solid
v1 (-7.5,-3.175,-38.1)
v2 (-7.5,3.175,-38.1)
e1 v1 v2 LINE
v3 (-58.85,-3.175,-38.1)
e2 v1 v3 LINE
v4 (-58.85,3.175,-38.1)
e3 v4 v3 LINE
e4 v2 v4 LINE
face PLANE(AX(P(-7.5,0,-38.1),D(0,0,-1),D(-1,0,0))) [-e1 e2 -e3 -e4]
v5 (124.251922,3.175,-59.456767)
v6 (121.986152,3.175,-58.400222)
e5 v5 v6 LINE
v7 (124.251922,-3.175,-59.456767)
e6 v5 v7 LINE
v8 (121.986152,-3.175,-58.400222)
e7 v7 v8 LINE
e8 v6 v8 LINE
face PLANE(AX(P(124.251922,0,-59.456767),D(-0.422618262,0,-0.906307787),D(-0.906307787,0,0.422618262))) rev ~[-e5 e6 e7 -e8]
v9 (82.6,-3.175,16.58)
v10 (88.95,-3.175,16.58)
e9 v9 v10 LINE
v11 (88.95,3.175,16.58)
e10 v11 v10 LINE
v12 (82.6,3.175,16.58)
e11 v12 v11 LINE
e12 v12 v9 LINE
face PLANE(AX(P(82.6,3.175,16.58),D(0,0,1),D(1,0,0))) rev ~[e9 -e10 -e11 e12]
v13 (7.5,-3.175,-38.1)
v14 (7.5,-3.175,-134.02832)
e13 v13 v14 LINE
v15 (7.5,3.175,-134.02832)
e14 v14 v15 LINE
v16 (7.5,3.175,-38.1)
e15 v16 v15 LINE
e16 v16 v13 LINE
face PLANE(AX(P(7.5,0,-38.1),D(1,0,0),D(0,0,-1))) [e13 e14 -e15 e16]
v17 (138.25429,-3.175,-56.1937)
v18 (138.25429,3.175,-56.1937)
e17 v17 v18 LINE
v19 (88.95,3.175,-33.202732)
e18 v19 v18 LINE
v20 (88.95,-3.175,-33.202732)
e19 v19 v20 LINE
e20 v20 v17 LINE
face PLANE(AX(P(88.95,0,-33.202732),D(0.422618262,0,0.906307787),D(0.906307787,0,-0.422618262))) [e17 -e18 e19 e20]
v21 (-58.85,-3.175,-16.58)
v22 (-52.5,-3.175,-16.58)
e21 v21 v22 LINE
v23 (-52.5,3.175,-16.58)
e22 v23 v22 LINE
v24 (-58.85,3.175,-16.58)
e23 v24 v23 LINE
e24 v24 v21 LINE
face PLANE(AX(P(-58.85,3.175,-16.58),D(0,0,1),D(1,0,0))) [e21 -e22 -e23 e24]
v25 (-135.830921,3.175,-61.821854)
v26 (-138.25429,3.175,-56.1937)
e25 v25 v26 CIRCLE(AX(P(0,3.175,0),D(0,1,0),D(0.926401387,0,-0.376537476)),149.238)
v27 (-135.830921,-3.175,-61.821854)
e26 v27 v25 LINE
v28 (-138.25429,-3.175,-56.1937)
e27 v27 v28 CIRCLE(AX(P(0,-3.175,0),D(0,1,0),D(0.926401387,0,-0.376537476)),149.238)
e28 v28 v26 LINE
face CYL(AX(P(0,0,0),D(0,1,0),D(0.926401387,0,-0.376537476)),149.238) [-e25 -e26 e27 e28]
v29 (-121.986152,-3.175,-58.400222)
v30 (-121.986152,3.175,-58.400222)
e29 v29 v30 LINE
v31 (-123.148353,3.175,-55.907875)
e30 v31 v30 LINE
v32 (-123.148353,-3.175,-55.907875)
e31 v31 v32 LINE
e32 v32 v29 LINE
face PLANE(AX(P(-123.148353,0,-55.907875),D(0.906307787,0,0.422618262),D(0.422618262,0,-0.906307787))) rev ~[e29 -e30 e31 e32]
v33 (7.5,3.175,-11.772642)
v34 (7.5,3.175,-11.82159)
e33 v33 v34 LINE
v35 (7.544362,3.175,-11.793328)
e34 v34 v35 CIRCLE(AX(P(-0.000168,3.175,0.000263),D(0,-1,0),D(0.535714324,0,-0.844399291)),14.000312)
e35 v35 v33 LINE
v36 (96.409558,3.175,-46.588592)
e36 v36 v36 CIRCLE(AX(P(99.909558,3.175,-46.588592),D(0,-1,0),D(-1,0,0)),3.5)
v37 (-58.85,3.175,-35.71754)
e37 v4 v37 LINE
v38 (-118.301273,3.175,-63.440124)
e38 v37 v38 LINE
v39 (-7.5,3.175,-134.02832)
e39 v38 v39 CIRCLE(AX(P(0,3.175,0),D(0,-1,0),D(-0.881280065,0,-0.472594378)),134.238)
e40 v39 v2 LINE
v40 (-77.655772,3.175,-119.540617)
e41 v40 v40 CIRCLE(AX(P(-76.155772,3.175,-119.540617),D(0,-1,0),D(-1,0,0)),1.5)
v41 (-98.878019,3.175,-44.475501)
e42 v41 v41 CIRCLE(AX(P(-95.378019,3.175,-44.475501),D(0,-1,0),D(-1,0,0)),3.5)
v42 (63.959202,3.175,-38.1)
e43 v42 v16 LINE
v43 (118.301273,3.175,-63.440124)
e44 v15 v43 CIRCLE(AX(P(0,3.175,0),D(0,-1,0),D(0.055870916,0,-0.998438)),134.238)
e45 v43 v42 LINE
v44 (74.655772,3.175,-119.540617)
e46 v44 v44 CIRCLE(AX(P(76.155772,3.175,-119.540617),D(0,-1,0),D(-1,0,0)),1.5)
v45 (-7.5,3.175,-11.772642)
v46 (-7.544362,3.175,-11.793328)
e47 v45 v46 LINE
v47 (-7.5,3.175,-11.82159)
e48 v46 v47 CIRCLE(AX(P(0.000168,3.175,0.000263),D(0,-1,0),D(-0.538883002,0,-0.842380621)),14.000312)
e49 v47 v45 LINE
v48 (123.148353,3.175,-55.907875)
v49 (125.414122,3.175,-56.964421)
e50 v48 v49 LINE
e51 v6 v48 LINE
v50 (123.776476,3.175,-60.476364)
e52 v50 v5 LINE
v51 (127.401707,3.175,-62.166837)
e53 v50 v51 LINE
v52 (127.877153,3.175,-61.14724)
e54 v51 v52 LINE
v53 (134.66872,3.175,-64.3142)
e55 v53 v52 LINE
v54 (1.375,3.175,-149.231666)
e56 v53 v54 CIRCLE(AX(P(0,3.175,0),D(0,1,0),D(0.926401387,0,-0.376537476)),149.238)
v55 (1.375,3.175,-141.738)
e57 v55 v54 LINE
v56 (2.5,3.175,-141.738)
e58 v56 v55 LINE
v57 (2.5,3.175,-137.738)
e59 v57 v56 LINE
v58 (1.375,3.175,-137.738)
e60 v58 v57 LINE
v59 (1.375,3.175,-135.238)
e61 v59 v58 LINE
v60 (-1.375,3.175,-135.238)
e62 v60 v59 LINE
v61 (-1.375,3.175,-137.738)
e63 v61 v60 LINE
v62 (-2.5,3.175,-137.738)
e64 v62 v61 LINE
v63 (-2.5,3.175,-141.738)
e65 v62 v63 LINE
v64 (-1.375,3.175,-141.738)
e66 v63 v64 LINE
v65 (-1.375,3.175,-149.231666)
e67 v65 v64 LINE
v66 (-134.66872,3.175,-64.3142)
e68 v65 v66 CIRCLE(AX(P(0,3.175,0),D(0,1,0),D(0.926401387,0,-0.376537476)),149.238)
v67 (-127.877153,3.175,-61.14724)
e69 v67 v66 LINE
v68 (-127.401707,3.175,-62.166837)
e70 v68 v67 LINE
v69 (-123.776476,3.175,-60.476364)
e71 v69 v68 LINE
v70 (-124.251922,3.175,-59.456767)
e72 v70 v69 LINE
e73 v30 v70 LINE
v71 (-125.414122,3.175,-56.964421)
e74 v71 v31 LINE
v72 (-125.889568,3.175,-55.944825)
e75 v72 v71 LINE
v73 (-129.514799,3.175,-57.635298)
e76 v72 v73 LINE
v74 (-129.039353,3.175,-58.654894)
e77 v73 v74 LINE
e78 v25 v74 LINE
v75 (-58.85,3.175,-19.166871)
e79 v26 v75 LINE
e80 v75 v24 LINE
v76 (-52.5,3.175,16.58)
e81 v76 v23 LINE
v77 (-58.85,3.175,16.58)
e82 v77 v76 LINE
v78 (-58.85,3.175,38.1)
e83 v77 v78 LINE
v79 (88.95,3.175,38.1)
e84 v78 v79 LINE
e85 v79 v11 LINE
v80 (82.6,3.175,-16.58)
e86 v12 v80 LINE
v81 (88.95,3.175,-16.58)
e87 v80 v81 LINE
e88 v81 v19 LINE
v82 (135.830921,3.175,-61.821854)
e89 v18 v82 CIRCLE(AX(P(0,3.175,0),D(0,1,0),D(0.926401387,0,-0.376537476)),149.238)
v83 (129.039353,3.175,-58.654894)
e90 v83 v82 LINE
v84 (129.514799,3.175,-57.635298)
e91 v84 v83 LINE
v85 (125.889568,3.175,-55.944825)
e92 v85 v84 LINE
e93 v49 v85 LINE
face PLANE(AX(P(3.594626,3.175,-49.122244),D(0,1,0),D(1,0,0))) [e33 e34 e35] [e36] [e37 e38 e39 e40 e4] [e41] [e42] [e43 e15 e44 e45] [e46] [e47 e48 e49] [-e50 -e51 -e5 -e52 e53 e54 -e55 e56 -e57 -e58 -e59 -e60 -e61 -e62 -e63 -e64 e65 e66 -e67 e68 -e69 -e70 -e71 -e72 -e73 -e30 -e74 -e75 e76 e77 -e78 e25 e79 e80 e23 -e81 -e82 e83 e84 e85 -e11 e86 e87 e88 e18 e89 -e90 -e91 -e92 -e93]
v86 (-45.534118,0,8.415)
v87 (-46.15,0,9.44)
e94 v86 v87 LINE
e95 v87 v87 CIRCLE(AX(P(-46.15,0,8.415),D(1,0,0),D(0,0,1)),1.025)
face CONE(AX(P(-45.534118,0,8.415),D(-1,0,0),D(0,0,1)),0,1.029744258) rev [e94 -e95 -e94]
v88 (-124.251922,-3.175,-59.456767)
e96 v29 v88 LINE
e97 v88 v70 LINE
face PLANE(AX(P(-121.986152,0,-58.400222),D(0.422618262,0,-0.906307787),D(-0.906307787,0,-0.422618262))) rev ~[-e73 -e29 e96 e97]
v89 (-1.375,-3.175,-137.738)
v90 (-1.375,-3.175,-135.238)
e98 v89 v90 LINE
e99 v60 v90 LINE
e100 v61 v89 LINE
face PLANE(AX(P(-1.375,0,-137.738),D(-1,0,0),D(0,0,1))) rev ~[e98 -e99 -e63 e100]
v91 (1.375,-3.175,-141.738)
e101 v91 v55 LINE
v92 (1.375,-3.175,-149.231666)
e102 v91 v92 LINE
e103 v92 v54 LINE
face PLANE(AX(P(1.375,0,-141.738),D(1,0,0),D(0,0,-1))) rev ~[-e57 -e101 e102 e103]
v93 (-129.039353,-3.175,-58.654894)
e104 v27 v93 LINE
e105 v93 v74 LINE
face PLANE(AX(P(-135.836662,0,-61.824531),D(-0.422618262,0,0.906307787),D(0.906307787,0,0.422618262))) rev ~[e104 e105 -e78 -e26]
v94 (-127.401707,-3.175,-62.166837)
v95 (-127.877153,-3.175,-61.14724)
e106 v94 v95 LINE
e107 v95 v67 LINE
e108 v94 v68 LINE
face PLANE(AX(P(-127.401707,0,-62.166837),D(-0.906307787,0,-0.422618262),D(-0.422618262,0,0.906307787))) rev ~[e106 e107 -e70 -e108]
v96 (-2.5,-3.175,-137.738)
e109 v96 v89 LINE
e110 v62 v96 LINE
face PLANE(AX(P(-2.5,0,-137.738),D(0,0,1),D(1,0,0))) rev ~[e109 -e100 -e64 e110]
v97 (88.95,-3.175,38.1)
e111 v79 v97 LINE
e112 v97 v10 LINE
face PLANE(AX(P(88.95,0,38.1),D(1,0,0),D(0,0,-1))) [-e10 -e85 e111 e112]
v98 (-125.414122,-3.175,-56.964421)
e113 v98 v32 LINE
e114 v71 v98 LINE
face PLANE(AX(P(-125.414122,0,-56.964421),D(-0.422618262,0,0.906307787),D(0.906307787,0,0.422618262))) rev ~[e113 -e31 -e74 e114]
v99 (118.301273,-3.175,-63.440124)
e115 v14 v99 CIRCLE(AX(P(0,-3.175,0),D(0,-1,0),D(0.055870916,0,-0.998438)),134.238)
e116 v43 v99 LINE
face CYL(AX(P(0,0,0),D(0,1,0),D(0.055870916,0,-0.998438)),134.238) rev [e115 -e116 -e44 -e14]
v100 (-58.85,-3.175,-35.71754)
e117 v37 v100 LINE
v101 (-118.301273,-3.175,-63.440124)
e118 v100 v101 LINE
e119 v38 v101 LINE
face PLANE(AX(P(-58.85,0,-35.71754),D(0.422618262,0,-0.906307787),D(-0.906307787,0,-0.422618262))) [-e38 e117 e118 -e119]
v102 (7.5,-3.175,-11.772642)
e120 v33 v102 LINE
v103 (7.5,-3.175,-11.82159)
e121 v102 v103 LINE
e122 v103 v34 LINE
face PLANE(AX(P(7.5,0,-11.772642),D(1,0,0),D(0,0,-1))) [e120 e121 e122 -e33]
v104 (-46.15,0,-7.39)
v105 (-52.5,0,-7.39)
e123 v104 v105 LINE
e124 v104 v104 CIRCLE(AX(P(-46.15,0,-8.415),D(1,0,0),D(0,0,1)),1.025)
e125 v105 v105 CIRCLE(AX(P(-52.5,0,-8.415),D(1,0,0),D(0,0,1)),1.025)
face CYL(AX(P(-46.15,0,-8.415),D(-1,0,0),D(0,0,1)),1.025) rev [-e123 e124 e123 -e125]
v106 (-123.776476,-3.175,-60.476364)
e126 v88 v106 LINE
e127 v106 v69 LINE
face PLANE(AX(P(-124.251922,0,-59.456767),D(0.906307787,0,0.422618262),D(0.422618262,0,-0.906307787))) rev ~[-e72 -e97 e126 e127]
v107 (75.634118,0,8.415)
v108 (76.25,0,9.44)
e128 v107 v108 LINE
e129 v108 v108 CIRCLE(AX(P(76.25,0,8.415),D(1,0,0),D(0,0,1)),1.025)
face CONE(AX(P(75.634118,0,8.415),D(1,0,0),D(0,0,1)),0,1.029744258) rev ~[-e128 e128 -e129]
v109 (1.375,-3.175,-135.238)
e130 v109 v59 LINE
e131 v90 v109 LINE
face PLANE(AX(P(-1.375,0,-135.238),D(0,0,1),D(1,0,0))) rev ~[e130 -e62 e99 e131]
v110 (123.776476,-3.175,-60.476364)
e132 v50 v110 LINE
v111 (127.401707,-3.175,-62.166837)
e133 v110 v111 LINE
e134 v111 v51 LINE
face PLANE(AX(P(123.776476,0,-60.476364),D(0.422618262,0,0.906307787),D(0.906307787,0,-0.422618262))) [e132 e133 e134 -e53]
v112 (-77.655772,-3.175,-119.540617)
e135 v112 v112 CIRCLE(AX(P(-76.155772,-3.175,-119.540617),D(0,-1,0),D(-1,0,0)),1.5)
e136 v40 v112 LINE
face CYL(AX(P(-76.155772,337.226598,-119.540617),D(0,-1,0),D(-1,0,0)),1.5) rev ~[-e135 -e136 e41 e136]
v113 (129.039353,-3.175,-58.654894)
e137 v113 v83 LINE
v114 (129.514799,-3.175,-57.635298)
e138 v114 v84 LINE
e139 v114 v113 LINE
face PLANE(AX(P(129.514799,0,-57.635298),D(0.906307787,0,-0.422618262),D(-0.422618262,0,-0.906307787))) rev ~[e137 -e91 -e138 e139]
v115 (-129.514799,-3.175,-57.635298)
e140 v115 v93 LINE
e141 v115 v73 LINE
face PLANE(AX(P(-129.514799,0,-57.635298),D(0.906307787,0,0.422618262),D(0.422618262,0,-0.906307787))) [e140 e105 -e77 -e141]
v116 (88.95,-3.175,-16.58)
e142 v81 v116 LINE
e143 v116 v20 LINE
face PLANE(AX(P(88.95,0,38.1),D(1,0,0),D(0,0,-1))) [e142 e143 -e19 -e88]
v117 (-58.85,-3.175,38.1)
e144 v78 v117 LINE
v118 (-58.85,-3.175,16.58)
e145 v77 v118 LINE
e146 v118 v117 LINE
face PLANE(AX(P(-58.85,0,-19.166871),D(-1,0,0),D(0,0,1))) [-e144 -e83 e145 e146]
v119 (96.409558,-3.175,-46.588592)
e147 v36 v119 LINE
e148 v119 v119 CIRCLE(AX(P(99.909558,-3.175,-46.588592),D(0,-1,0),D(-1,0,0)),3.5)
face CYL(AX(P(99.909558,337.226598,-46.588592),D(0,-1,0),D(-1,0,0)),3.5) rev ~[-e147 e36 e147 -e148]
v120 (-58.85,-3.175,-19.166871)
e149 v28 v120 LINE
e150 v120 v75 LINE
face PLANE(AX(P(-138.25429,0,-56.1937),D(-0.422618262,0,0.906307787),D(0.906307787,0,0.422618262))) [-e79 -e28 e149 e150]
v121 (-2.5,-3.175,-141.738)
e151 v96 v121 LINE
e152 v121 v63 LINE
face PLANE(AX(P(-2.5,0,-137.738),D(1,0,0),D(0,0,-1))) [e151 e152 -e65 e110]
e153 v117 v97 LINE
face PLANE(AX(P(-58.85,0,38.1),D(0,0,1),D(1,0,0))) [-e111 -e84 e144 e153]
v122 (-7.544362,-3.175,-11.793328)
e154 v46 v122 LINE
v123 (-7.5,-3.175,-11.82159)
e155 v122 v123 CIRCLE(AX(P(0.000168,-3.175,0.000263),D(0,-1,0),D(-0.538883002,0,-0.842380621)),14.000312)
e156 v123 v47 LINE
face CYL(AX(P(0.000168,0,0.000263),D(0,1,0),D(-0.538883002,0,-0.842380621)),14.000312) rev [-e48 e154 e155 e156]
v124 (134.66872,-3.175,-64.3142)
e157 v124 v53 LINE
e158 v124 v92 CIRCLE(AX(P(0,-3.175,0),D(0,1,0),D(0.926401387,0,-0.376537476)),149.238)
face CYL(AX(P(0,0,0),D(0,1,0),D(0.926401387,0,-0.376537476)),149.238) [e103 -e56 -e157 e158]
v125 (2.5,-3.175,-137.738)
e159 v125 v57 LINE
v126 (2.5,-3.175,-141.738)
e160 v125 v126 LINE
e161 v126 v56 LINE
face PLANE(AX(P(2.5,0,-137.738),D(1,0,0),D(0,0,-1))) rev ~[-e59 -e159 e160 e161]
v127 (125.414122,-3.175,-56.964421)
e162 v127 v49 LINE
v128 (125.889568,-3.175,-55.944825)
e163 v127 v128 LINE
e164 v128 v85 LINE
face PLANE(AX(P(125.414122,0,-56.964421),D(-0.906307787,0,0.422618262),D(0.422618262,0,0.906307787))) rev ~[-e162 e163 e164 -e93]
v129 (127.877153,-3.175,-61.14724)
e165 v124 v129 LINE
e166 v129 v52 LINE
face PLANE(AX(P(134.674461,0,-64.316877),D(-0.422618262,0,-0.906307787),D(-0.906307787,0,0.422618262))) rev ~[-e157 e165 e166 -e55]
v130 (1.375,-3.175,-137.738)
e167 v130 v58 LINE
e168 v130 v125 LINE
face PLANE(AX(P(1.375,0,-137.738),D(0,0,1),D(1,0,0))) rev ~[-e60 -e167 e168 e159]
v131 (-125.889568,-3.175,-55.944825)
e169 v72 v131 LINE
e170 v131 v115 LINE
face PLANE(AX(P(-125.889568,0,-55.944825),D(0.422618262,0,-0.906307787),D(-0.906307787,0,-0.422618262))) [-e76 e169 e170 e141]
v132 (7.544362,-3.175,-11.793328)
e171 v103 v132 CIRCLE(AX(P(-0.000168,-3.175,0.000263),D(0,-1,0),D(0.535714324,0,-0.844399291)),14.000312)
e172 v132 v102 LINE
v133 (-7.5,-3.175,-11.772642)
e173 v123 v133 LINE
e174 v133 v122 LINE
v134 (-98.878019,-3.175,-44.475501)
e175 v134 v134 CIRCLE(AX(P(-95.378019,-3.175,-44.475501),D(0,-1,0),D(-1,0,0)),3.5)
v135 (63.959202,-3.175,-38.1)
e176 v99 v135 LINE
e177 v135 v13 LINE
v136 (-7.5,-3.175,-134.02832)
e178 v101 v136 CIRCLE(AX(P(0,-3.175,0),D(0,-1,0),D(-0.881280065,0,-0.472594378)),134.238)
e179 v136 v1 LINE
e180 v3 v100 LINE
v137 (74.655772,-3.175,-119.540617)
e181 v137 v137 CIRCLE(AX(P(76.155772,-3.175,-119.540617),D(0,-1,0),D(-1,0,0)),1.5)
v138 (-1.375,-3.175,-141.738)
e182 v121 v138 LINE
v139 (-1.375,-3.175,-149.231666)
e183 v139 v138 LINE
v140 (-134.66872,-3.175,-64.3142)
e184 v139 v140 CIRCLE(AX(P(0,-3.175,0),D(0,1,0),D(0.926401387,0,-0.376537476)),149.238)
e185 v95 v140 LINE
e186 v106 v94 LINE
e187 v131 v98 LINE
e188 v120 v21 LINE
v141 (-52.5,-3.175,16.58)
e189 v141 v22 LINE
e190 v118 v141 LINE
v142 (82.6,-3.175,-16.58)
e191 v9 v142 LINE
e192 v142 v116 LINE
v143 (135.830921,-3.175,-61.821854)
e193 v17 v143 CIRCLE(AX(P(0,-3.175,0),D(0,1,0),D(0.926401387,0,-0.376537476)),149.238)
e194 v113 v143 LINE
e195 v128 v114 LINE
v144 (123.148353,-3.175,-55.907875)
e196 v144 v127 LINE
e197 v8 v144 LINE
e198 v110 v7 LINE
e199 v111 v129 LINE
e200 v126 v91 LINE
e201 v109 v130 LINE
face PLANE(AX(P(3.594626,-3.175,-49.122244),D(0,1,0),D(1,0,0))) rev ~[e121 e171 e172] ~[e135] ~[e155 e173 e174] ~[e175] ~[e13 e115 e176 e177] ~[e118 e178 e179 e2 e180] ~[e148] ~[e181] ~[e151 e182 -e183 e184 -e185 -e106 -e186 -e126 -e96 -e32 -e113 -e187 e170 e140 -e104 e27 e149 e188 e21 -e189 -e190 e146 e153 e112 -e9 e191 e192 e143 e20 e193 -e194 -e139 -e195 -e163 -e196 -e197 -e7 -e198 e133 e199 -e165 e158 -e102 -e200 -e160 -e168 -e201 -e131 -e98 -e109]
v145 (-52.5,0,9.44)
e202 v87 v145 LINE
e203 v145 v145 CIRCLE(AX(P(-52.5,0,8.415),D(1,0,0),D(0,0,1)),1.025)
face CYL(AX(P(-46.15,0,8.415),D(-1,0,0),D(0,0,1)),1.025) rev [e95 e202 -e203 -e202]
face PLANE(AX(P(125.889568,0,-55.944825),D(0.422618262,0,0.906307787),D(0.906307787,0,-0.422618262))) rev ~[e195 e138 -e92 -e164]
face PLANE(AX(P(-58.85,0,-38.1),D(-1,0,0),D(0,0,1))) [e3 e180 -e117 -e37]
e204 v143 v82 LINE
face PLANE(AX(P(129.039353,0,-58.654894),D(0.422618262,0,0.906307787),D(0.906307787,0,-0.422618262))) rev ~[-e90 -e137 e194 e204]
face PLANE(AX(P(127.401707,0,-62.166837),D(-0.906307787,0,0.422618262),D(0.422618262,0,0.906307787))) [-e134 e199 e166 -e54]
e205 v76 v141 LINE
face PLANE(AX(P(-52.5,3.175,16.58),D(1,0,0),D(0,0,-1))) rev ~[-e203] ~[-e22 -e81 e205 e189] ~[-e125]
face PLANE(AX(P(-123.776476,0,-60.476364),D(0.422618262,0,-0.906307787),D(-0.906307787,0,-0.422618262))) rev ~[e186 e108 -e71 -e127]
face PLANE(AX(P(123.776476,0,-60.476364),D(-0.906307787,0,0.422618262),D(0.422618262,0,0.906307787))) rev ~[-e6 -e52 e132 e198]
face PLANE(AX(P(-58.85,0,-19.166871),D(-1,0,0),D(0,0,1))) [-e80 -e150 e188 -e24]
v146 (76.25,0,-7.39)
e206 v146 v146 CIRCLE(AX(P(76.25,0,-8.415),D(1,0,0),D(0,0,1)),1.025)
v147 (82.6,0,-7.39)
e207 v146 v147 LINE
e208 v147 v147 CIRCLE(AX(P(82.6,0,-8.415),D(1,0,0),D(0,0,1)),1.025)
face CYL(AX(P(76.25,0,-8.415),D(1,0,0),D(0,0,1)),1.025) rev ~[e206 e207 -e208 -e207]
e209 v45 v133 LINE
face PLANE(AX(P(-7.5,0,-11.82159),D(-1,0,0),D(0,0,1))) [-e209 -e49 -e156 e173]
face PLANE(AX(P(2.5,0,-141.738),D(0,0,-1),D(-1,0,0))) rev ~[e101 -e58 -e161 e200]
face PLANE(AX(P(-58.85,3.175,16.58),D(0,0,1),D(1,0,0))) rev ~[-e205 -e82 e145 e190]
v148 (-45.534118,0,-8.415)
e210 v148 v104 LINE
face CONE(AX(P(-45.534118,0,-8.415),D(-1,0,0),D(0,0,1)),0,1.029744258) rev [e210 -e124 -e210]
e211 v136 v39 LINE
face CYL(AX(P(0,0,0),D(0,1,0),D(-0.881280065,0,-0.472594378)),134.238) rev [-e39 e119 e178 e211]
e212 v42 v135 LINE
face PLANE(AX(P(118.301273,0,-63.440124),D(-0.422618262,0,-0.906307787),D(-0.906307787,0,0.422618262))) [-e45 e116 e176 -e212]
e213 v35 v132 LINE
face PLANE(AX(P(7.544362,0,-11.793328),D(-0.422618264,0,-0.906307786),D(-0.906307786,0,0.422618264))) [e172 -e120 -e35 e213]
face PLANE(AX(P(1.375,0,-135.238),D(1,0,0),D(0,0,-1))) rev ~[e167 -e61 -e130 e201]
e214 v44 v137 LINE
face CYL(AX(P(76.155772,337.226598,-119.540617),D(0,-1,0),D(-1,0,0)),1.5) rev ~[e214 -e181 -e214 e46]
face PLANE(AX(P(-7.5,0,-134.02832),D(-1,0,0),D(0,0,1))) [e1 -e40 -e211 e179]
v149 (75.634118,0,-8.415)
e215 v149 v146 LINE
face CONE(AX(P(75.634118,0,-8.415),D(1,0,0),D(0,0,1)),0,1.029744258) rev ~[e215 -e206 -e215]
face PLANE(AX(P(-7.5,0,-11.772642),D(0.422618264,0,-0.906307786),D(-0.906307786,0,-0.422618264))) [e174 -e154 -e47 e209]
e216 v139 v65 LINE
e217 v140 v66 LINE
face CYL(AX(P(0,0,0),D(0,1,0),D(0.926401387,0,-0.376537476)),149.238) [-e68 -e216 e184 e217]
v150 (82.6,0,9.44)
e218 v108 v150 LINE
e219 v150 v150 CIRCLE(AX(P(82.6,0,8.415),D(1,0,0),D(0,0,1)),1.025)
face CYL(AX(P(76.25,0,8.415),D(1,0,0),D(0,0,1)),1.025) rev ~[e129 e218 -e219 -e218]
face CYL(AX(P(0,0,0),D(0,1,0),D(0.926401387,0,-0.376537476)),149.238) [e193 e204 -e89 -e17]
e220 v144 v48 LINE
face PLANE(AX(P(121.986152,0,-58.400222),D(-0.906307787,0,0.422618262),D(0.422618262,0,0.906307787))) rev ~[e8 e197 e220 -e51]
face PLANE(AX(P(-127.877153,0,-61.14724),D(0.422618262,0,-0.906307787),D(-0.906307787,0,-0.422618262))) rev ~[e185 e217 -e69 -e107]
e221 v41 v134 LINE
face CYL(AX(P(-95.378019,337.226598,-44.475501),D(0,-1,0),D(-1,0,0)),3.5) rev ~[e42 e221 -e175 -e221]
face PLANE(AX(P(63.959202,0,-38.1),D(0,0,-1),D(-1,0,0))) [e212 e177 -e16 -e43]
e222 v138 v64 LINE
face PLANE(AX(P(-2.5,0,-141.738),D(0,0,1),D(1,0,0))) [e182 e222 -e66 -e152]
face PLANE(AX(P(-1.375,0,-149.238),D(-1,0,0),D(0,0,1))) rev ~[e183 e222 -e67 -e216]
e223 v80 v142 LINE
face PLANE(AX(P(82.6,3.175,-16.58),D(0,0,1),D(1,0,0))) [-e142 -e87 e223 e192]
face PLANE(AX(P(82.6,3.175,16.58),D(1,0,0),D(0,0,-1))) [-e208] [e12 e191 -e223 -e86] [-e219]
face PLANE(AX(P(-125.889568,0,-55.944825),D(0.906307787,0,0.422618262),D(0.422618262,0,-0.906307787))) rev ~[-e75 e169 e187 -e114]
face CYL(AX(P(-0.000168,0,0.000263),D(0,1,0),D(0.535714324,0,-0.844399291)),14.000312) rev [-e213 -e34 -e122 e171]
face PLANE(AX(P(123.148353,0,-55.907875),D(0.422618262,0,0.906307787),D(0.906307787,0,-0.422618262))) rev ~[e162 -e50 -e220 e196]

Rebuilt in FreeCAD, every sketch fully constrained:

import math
import FreeCAD as App
import Part
import Sketcher
from FreeCAD import Vector
Q = App.Units.Quantity

doc = App.newDocument("Part")
params = doc.addObject("Spreadsheet::Sheet", "Params")
for row, (alias, value) in enumerate([
    ("sketch1_width", "147.8 mm"),
    ("sketch1_width2", "51.35 mm"),
    ("pad1_length", "6.35 mm"),
    ("sketch2_height", "4 mm"),
    ("sketch2_height2", "2.5 mm"),
    ("sketch2_height3", "7.5 mm"),
    ("sketch2_width", "2.75 mm"),
    ("pocket1_length", "408.921663 mm"),
    ("sketch3_diameter", "3 mm"),
    ("hole_diameter", "3 mm"),
    ("sketch4_width", "6.35 mm"),
    ("sketch4_height", "33.16 mm"),
    ("sketch5_width", "6.35 mm"),
    ("groove_angle", "360 deg"),
    ("linearpattern_pitch", "16.83 mm"),
    ("sketch6_width", "6.35 mm"),
    ("groove2_angle", "360 deg"),
    ("sketch7_diameter", "7 mm"),
    ("hole2_diameter", "7 mm"),
], start=1):
    params.set(f"A{row}", alias)
    params.set(f"B{row}", "=" + value)
    params.setAlias(f"B{row}", alias)

body = doc.addObject("PartDesign::Body", "Body")

# Sketch on XZ plane
sketch1 = doc.addObject("Sketcher::SketchObject", "Sketch")
body.addObject(sketch1)
sketch1.AttachmentSupport = (doc.XZ_Plane, [""])
sketch1.MapMode = "FlatFace"
sketch1.addGeometry(Part.LineSegment(Vector(88.95, -33.202732, 0), Vector(138.25429, -56.1937, 0)), False)
sketch1.addGeometry(Part.ArcOfCircle(Part.Circle(Vector(0, 0, 0), Vector(0, 0, 1), 149.238), math.radians(-157.88063), math.radians(-22.11937)), False)
sketch1.addGeometry(Part.LineSegment(Vector(-138.25429, -56.1937, 0), Vector(-58.85, -19.166871, 0)), False)
sketch1.addGeometry(Part.LineSegment(Vector(-58.85, -19.166871, 0), Vector(-58.85, 38.1, 0)), False)
sketch1.addGeometry(Part.LineSegment(Vector(-58.85, 38.1, 0), Vector(88.95, 38.1, 0)), False)
sketch1.addGeometry(Part.LineSegment(Vector(88.95, 38.1, 0), Vector(88.95, -33.202732, 0)), False)
sketch1.addGeometry(Part.ArcOfCircle(Part.Circle(Vector(0.000168, 0.000263, 0), Vector(0, 0, 1), 14.000312), math.radians(-122.607632), math.radians(-122.392368)), False)
sketch1.addGeometry(Part.LineSegment(Vector(-7.5, -11.82159, 0), Vector(-7.5, -11.772642, 0)), False)
sketch1.addGeometry(Part.LineSegment(Vector(-7.5, -11.772642, 0), Vector(-7.544362, -11.793328, 0)), False)
sketch1.addGeometry(Part.LineSegment(Vector(7.5, -11.772642, 0), Vector(7.5, -11.82159, 0)), False)
sketch1.addGeometry(Part.ArcOfCircle(Part.Circle(Vector(-0.000168, 0.000263, 0), Vector(0, 0, 1), 14.000312), math.radians(-57.607632), math.radians(-57.392368)), False)
sketch1.addGeometry(Part.LineSegment(Vector(7.544362, -11.793328, 0), Vector(7.5, -11.772642, 0)), False)
sketch1.addGeometry(Part.ArcOfCircle(Part.Circle(Vector(0, 0, 0), Vector(0, 0, 1), 134.238), math.radians(-151.797165), math.radians(-93.202835)), False)
sketch1.addGeometry(Part.LineSegment(Vector(-7.5, -134.02832, 0), Vector(-7.5, -38.1, 0)), False)
sketch1.addGeometry(Part.LineSegment(Vector(-7.5, -38.1, 0), Vector(-58.85, -38.1, 0)), False)
sketch1.addGeometry(Part.LineSegment(Vector(-58.85, -38.1, 0), Vector(-58.85, -35.71754, 0)), False)
sketch1.addGeometry(Part.LineSegment(Vector(-58.85, -35.71754, 0), Vector(-118.301273, -63.440124, 0)), False)
sketch1.addGeometry(Part.LineSegment(Vector(7.5, -38.1, 0), Vector(7.5, -134.02832, 0)), False)
sketch1.addGeometry(Part.ArcOfCircle(Part.Circle(Vector(0, 0, 0), Vector(0, 0, 1), 134.238), math.radians(-86.797165), math.radians(-28.202835)), False)
sketch1.addGeometry(Part.LineSegment(Vector(118.301273, -63.440124, 0), Vector(63.959202, -38.1, 0)), False)
sketch1.addGeometry(Part.LineSegment(Vector(63.959202, -38.1, 0), Vector(7.5, -38.1, 0)), False)
sketch1.addConstraint(Sketcher.Constraint("Coincident", 0, 2, 1, 2))
sketch1.addConstraint(Sketcher.Constraint("Coincident", 1, 1, 2, 1))
sketch1.addConstraint(Sketcher.Constraint("Coincident", 2, 2, 3, 1))
sketch1.addConstraint(Sketcher.Constraint("Coincident", 3, 2, 4, 1))
sketch1.addConstraint(Sketcher.Constraint("Coincident", 4, 2, 5, 1))
sketch1.addConstraint(Sketcher.Constraint("Coincident", 5, 2, 0, 1))
sketch1.addConstraint(Sketcher.Constraint("Coincident", 6, 2, 7, 1))
sketch1.addConstraint(Sketcher.Constraint("Coincident", 7, 2, 8, 1))
sketch1.addConstraint(Sketcher.Constraint("Coincident", 8, 2, 6, 1))
sketch1.addConstraint(Sketcher.Constraint("Coincident", 9, 2, 10, 1))
sketch1.addConstraint(Sketcher.Constraint("Coincident", 10, 2, 11, 1))
sketch1.addConstraint(Sketcher.Constraint("Coincident", 11, 2, 9, 1))
sketch1.addConstraint(Sketcher.Constraint("Coincident", 12, 2, 13, 1))
sketch1.addConstraint(Sketcher.Constraint("Coincident", 13, 2, 14, 1))
sketch1.addConstraint(Sketcher.Constraint("Coincident", 14, 2, 15, 1))
sketch1.addConstraint(Sketcher.Constraint("Coincident", 15, 2, 16, 1))
sketch1.addConstraint(Sketcher.Constraint("Coincident", 16, 2, 12, 1))
sketch1.addConstraint(Sketcher.Constraint("Coincident", 17, 2, 18, 1))
sketch1.addConstraint(Sketcher.Constraint("Coincident", 18, 2, 19, 1))
sketch1.addConstraint(Sketcher.Constraint("Coincident", 19, 2, 20, 1))
sketch1.addConstraint(Sketcher.Constraint("Coincident", 20, 2, 17, 1))
sketch1.addConstraint(Sketcher.Constraint("Vertical", 3))
sketch1.addConstraint(Sketcher.Constraint("Horizontal", 4))
sketch1.addConstraint(Sketcher.Constraint("Vertical", 5))
sketch1.addConstraint(Sketcher.Constraint("Vertical", 7))
sketch1.addConstraint(Sketcher.Constraint("Vertical", 9))
sketch1.addConstraint(Sketcher.Constraint("Vertical", 13))
sketch1.addConstraint(Sketcher.Constraint("Horizontal", 14))
sketch1.addConstraint(Sketcher.Constraint("Vertical", 15))
sketch1.addConstraint(Sketcher.Constraint("Vertical", 17))
sketch1.addConstraint(Sketcher.Constraint("Horizontal", 20))
sketch1.addConstraint(Sketcher.Constraint("Coincident", 1, 3, -1, 1))
sketch1.addConstraint(Sketcher.Constraint("Coincident", 12, 3, -1, 1))
sketch1.addConstraint(Sketcher.Constraint("Coincident", 18, 3, -1, 1))
sketch1.addConstraint(Sketcher.Constraint("Equal", 6, 10))
sketch1.addConstraint(Sketcher.Constraint("Equal", 12, 18))
sketch1.addConstraint(Sketcher.Constraint("Symmetric", 6, 3, 10, 3, -2))
sketch1.addConstraint(Sketcher.Constraint("Symmetric", 7, 2, 11, 2, -2))
sketch1.addConstraint(Sketcher.Constraint("Symmetric", 13, 2, 20, 2, -2))
sketch1.addConstraint(Sketcher.Constraint("Symmetric", 3, 2, 14, 2, -1))
sketch1.addConstraint(Sketcher.Constraint("Parallel", 2, 8))
sketch1.addConstraint(Sketcher.Constraint("Parallel", 0, 11))
sketch1.addConstraint(Sketcher.Constraint("Parallel", 2, 16))
sketch1.addConstraint(Sketcher.Constraint("Parallel", 0, 19))
sketch1.addConstraint(Sketcher.Constraint("Horizontal", 0, 2, 1, 1))
sketch1.addConstraint(Sketcher.Constraint("Horizontal", 16, 2, 18, 2))
sketch1.addConstraint(Sketcher.Constraint("Vertical", 7, 2, 12, 2))
sketch1.addConstraint(Sketcher.Constraint("Angle", 0, Q("-25 deg")))
sketch1.addConstraint(Sketcher.Constraint("Angle", 2, Q("25 deg")))
sketch1.addConstraint(Sketcher.Constraint("DistanceX", 4, 1, 4, 2, Q("147.8 mm")))
sketch1.addConstraint(Sketcher.Constraint("Radius", 1, Q("149.238 mm")))
sketch1.addConstraint(Sketcher.Constraint("Radius", 12, Q("134.238 mm")))
sketch1.addConstraint(Sketcher.Constraint("DistanceX", 12, 2, 9, 2, Q("15 mm")))
sketch1.addConstraint(Sketcher.Constraint("DistanceX", 14, 2, 14, 1, Q("51.35 mm")))
sketch1.addConstraint(Sketcher.Constraint("DistanceY", -1, 1, 3, 2, Q("38.1 mm")))
sketch1.addConstraint(Sketcher.Constraint("Radius", 6, Q("14.000312 mm")))
sketch1.addConstraint(Sketcher.Constraint("DistanceX", 20, 2, 20, 1, Q("56.459202 mm")))
sketch1.addConstraint(Sketcher.Constraint("DistanceY", 3, 1, 3, 2, Q("57.266871 mm")))
sketch1.addConstraint(Sketcher.Constraint("DistanceY", 7, 1, 7, 2, Q("0.048949 mm")))
sketch1.addConstraint(Sketcher.Constraint("Distance", 8, Q("0.048949 mm")))
sketch1.addConstraint(Sketcher.Constraint("DistanceY", 6, 2, -1, 1, Q("11.82159 mm")))
sketch1.setExpression("Constraints[49]", "Params.sketch1_width")
sketch1.setExpression("Constraints[53]", "Params.sketch1_width2")
pad1 = doc.addObject("PartDesign::Pad", "Pad")
body.addObject(pad1)
pad1.Profile = sketch1
pad1.setExpression("Length", "Params.pad1_length")
pad1.Midplane = True

# Sketch on XZ plane
sketch2 = doc.addObject("Sketcher::SketchObject", "Sketch001")
body.addObject(sketch2)
sketch2.AttachmentSupport = (doc.XZ_Plane, [""])
sketch2.MapMode = "FlatFace"
sketch2.addGeometry(Part.LineSegment(Vector(-1.4, -135.2, 0), Vector(1.4, -135.2, 0)), False)
sketch2.addGeometry(Part.LineSegment(Vector(1.4, -135.2, 0), Vector(1.4, -137.7, 0)), False)
sketch2.addGeometry(Part.LineSegment(Vector(1.4, -137.7, 0), Vector(2.5, -137.7, 0)), False)
sketch2.addGeometry(Part.LineSegment(Vector(2.5, -137.7, 0), Vector(2.5, -141.7, 0)), False)
sketch2.addGeometry(Part.LineSegment(Vector(2.5, -141.7, 0), Vector(1.4, -141.7, 0)), False)
sketch2.addGeometry(Part.LineSegment(Vector(1.4, -141.7, 0), Vector(1.4, -149.2, 0)), False)
sketch2.addGeometry(Part.LineSegment(Vector(1.4, -149.2, 0), Vector(-1.4, -149.2, 0)), False)
sketch2.addGeometry(Part.LineSegment(Vector(-1.4, -149.2, 0), Vector(-1.4, -141.7, 0)), False)
sketch2.addGeometry(Part.LineSegment(Vector(-1.4, -141.7, 0), Vector(-2.5, -141.7, 0)), False)
sketch2.addGeometry(Part.LineSegment(Vector(-2.5, -141.7, 0), Vector(-2.5, -137.7, 0)), False)
sketch2.addGeometry(Part.LineSegment(Vector(-2.5, -137.7, 0), Vector(-1.4, -137.7, 0)), False)
sketch2.addGeometry(Part.LineSegment(Vector(-1.4, -137.7, 0), Vector(-1.4, -135.2, 0)), False)
sketch2.addConstraint(Sketcher.Constraint("Coincident", 0, 2, 1, 1))
sketch2.addConstraint(Sketcher.Constraint("Coincident", 1, 2, 2, 1))
sketch2.addConstraint(Sketcher.Constraint("Coincident", 2, 2, 3, 1))
sketch2.addConstraint(Sketcher.Constraint("Coincident", 3, 2, 4, 1))
sketch2.addConstraint(Sketcher.Constraint("Coincident", 4, 2, 5, 1))
sketch2.addConstraint(Sketcher.Constraint("Coincident", 5, 2, 6, 1))
sketch2.addConstraint(Sketcher.Constraint("Coincident", 6, 2, 7, 1))
sketch2.addConstraint(Sketcher.Constraint("Coincident", 7, 2, 8, 1))
sketch2.addConstraint(Sketcher.Constraint("Coincident", 8, 2, 9, 1))
sketch2.addConstraint(Sketcher.Constraint("Coincident", 9, 2, 10, 1))
sketch2.addConstraint(Sketcher.Constraint("Coincident", 10, 2, 11, 1))
sketch2.addConstraint(Sketcher.Constraint("Coincident", 11, 2, 0, 1))
sketch2.addConstraint(Sketcher.Constraint("Horizontal", 0))
sketch2.addConstraint(Sketcher.Constraint("Vertical", 1))
sketch2.addConstraint(Sketcher.Constraint("Horizontal", 2))
sketch2.addConstraint(Sketcher.Constraint("Vertical", 3))
sketch2.addConstraint(Sketcher.Constraint("Horizontal", 4))
sketch2.addConstraint(Sketcher.Constraint("Vertical", 5))
sketch2.addConstraint(Sketcher.Constraint("Horizontal", 6))
sketch2.addConstraint(Sketcher.Constraint("Vertical", 7))
sketch2.addConstraint(Sketcher.Constraint("Horizontal", 8))
sketch2.addConstraint(Sketcher.Constraint("Vertical", 9))
sketch2.addConstraint(Sketcher.Constraint("Horizontal", 10))
sketch2.addConstraint(Sketcher.Constraint("Vertical", 11))
sketch2.addConstraint(Sketcher.Constraint("Symmetric", 4, 2, 7, 2, -2))
sketch2.addConstraint(Sketcher.Constraint("Symmetric", 2, 2, 9, 2, -2))
sketch2.addConstraint(Sketcher.Constraint("Vertical", 1, 2, 4, 2))
sketch2.addConstraint(Sketcher.Constraint("Vertical", 7, 2, 10, 2))
sketch2.addConstraint(Sketcher.Constraint("DistanceY", 3, 2, 3, 1, Q("4 mm")))
sketch2.addConstraint(Sketcher.Constraint("DistanceY", 1, 2, 1, 1, Q("2.5 mm")))
sketch2.addConstraint(Sketcher.Constraint("DistanceY", 5, 2, 5, 1, Q("7.5 mm")))
sketch2.addConstraint(Sketcher.Constraint("DistanceX", 8, 2, 3, 2, Q("5 mm")))
sketch2.addConstraint(Sketcher.Constraint("DistanceX", 0, 1, 0, 2, Q("2.75 mm")))
sketch2.addConstraint(Sketcher.Constraint("DistanceY", 0, 2, -1, 1, Q("135.238 mm")))
sketch2.setExpression("Constraints[28]", "Params.sketch2_height")
sketch2.setExpression("Constraints[29]", "Params.sketch2_height2")
sketch2.setExpression("Constraints[30]", "Params.sketch2_height3")
sketch2.setExpression("Constraints[32]", "Params.sketch2_width")
pocket1 = doc.addObject("PartDesign::Pocket", "Pocket")
body.addObject(pocket1)
pocket1.Profile = sketch2
pocket1.setExpression("Length", "Params.pocket1_length")
pocket1.Midplane = True
doc.recompute()

polarpattern = doc.addObject("PartDesign::PolarPattern", "PolarPattern")
body.addObject(polarpattern)
polarpattern.Originals = [pocket1]
polarpattern.Axis = (doc.Y_Axis, [""])
polarpattern.Angle = 65
polarpattern.Occurrences = 2
body.Tip = polarpattern
doc.recompute()

polarpattern2 = doc.addObject("PartDesign::PolarPattern", "PolarPattern001")
body.addObject(polarpattern2)
polarpattern2.Originals = [pocket1]
polarpattern2.Axis = (doc.Y_Axis, [""])
polarpattern2.Angle = 65
polarpattern2.Occurrences = 2
polarpattern2.Reversed = True
body.Tip = polarpattern2

# Sketch on XZ plane
sketch3 = doc.addObject("Sketcher::SketchObject", "Sketch002")
body.addObject(sketch3)
sketch3.AttachmentSupport = (doc.XZ_Plane, [""])
sketch3.MapMode = "FlatFace"
sketch3.AttachmentOffset = App.Placement(Vector(0, 0, -3.175), App.Rotation())
sketch3.addGeometry(Part.Circle(Vector(76.2, -119.5, 0), Vector(0, 0, 1), 1.5), False)
sketch3.addGeometry(Part.Circle(Vector(-76.2, -119.5, 0), Vector(0, 0, 1), 1.5), False)
sketch3.addConstraint(Sketcher.Constraint("Equal", 0, 1))
sketch3.addConstraint(Sketcher.Constraint("Symmetric", 0, 3, 1, 3, -2))
sketch3.addConstraint(Sketcher.Constraint("Diameter", 0, Q("3 mm")))
sketch3.addConstraint(Sketcher.Constraint("DistanceX", -1, 1, 0, 3, Q("76.155772 mm")))
sketch3.addConstraint(Sketcher.Constraint("DistanceY", 0, 3, -1, 1, Q("119.540617 mm")))
sketch3.setExpression("Constraints[2]", "Params.sketch3_diameter")
doc.recompute()
hole = doc.addObject("PartDesign::Hole", "Hole")
body.addObject(hole)
hole.Profile = sketch3
hole.ThreadType = "None"
hole.setExpression("Diameter", "Params.hole_diameter")
hole.DepthType = "ThroughAll"
hole.Reversed = True

# Sketch on XZ plane
sketch4 = doc.addObject("Sketcher::SketchObject", "Sketch003")
body.addObject(sketch4)
sketch4.AttachmentSupport = (doc.XZ_Plane, [""])
sketch4.MapMode = "FlatFace"
sketch4.AttachmentOffset = App.Placement(Vector(0, 0, -3.175), App.Rotation())
sketch4.addGeometry(Part.LineSegment(Vector(-59, -17, 0), Vector(-59, 17, 0)), False)
sketch4.addGeometry(Part.LineSegment(Vector(-59, 17, 0), Vector(-52, 17, 0)), False)
sketch4.addGeometry(Part.LineSegment(Vector(-52, 17, 0), Vector(-52, -17, 0)), False)
sketch4.addGeometry(Part.LineSegment(Vector(-52, -17, 0), Vector(-59, -17, 0)), False)
sketch4.addGeometry(Part.LineSegment(Vector(83, -17, 0), Vector(83, 17, 0)), False)
sketch4.addGeometry(Part.LineSegment(Vector(83, 17, 0), Vector(89, 17, 0)), False)
sketch4.addGeometry(Part.LineSegment(Vector(89, 17, 0), Vector(89, -17, 0)), False)
sketch4.addGeometry(Part.LineSegment(Vector(89, -17, 0), Vector(83, -17, 0)), False)
sketch4.addConstraint(Sketcher.Constraint("Coincident", 0, 2, 1, 1))
sketch4.addConstraint(Sketcher.Constraint("Coincident", 1, 2, 2, 1))
sketch4.addConstraint(Sketcher.Constraint("Coincident", 2, 2, 3, 1))
sketch4.addConstraint(Sketcher.Constraint("Coincident", 3, 2, 0, 1))
sketch4.addConstraint(Sketcher.Constraint("Coincident", 4, 2, 5, 1))
sketch4.addConstraint(Sketcher.Constraint("Coincident", 5, 2, 6, 1))
sketch4.addConstraint(Sketcher.Constraint("Coincident", 6, 2, 7, 1))
sketch4.addConstraint(Sketcher.Constraint("Coincident", 7, 2, 4, 1))
sketch4.addConstraint(Sketcher.Constraint("Vertical", 0))
sketch4.addConstraint(Sketcher.Constraint("Horizontal", 1))
sketch4.addConstraint(Sketcher.Constraint("Vertical", 2))
sketch4.addConstraint(Sketcher.Constraint("Horizontal", 3))
sketch4.addConstraint(Sketcher.Constraint("Vertical", 4))
sketch4.addConstraint(Sketcher.Constraint("Horizontal", 5))
sketch4.addConstraint(Sketcher.Constraint("Vertical", 6))
sketch4.addConstraint(Sketcher.Constraint("Horizontal", 7))
sketch4.addConstraint(Sketcher.Constraint("Horizontal", 1, 2, 4, 2))
sketch4.addConstraint(Sketcher.Constraint("Horizontal", 3, 2, 6, 2))
sketch4.addConstraint(Sketcher.Constraint("Equal", 3, 5))
sketch4.addConstraint(Sketcher.Constraint("DistanceX", 1, 1, 1, 2, Q("6.35 mm")))
sketch4.addConstraint(Sketcher.Constraint("DistanceY", 0, 1, 0, 2, Q("33.16 mm")))
sketch4.addConstraint(Sketcher.Constraint("DistanceX", 1, 2, -1, 1, Q("52.5 mm")))
sketch4.addConstraint(Sketcher.Constraint("DistanceX", -1, 1, 4, 2, Q("82.6 mm")))
sketch4.addConstraint(Sketcher.Constraint("DistanceY", -1, 1, 0, 2, Q("16.58 mm")))
sketch4.setExpression("Constraints[19]", "Params.sketch4_width")
sketch4.setExpression("Constraints[20]", "Params.sketch4_height")
pocket2 = doc.addObject("PartDesign::Pocket", "Pocket001")
body.addObject(pocket2)
pocket2.Profile = sketch4
pocket2.Type = "ThroughAll"
pocket2.Reversed = True

# Sketch on XZ plane
sketch5 = doc.addObject("Sketcher::SketchObject", "Sketch004")
body.addObject(sketch5)
sketch5.AttachmentSupport = (doc.XZ_Plane, [""])
sketch5.MapMode = "FlatFace"
sketch5.addGeometry(Part.LineSegment(Vector(-45.5, -8.4, 0), Vector(-52.5, -8.4, 0)), False)
sketch5.addGeometry(Part.LineSegment(Vector(-52.5, -8.4, 0), Vector(-52.5, -7.4, 0)), False)
sketch5.addGeometry(Part.LineSegment(Vector(-52.5, -7.4, 0), Vector(-46.1, -7.4, 0)), False)
sketch5.addGeometry(Part.LineSegment(Vector(-46.1, -7.4, 0), Vector(-45.5, -8.4, 0)), False)
sketch5.addGeometry(Part.LineSegment(Vector(-52.5, -8.4, 0), Vector(-45.5, -8.4, 0)), True)  # axis
sketch5.addConstraint(Sketcher.Constraint("Coincident", 0, 2, 1, 1))
sketch5.addConstraint(Sketcher.Constraint("Coincident", 1, 2, 2, 1))
sketch5.addConstraint(Sketcher.Constraint("Coincident", 2, 2, 3, 1))
sketch5.addConstraint(Sketcher.Constraint("Coincident", 3, 2, 0, 1))
sketch5.addConstraint(Sketcher.Constraint("Horizontal", 0))
sketch5.addConstraint(Sketcher.Constraint("Vertical", 1))
sketch5.addConstraint(Sketcher.Constraint("Horizontal", 2))
sketch5.addConstraint(Sketcher.Constraint("Horizontal", 4))
sketch5.addConstraint(Sketcher.Constraint("Coincident", 4, 1, 0, 2))
sketch5.addConstraint(Sketcher.Constraint("Equal", 0, 4))
sketch5.addConstraint(Sketcher.Constraint("Angle", 3, Q("-59 deg")))
sketch5.addConstraint(Sketcher.Constraint("DistanceX", 2, 1, 2, 2, Q("6.35 mm")))
sketch5.addConstraint(Sketcher.Constraint("DistanceX", 0, 2, -1, 1, Q("52.5 mm")))
sketch5.addConstraint(Sketcher.Constraint("DistanceY", 1, 1, 1, 2, Q("1.025 mm")))
sketch5.addConstraint(Sketcher.Constraint("DistanceY", 1, 2, -1, 1, Q("7.39 mm")))
sketch5.setExpression("Constraints[11]", "Params.sketch5_width")
groove = doc.addObject("PartDesign::Groove", "Groove")
body.addObject(groove)
groove.Profile = sketch5
groove.ReferenceAxis = (sketch5, ["Axis0"])
groove.setExpression("Angle", "Params.groove_angle")
doc.recompute()

linearpattern = doc.addObject("PartDesign::LinearPattern", "LinearPattern")
body.addObject(linearpattern)
linearpattern.Originals = [groove]
linearpattern.Direction = (doc.Z_Axis, [""])
linearpattern.Mode = "offset"
linearpattern.setExpression("Offset", "Params.linearpattern_pitch")
linearpattern.Occurrences = 2
body.Tip = linearpattern
doc.recompute()

datumplane = doc.addObject("PartDesign::Plane", "DatumPlane")
body.addObject(datumplane)
datumplane.AttachmentSupport = (doc.YZ_Plane, [""])
datumplane.MapMode = "FlatFace"
datumplane.AttachmentOffset = App.Placement(Vector(0, 0, 15.05), App.Rotation())
mirrored = doc.addObject("PartDesign::Mirrored", "Mirrored")
body.addObject(mirrored)
mirrored.Originals = [groove]
mirrored.MirrorPlane = (datumplane, [""])
body.Tip = mirrored

# Sketch on XZ plane
sketch6 = doc.addObject("Sketcher::SketchObject", "Sketch005")
body.addObject(sketch6)
sketch6.AttachmentSupport = (doc.XZ_Plane, [""])
sketch6.MapMode = "FlatFace"
sketch6.addGeometry(Part.LineSegment(Vector(82.6, 8.4, 0), Vector(75.6, 8.4, 0)), False)
sketch6.addGeometry(Part.LineSegment(Vector(75.6, 8.4, 0), Vector(76.2, 9.4, 0)), False)
sketch6.addGeometry(Part.LineSegment(Vector(76.2, 9.4, 0), Vector(82.6, 9.4, 0)), False)
sketch6.addGeometry(Part.LineSegment(Vector(82.6, 9.4, 0), Vector(82.6, 8.4, 0)), False)
sketch6.addGeometry(Part.LineSegment(Vector(75.6, 8.4, 0), Vector(82.6, 8.4, 0)), True)  # axis
sketch6.addConstraint(Sketcher.Constraint("Coincident", 0, 2, 1, 1))
sketch6.addConstraint(Sketcher.Constraint("Coincident", 1, 2, 2, 1))
sketch6.addConstraint(Sketcher.Constraint("Coincident", 2, 2, 3, 1))
sketch6.addConstraint(Sketcher.Constraint("Coincident", 3, 2, 0, 1))
sketch6.addConstraint(Sketcher.Constraint("Horizontal", 0))
sketch6.addConstraint(Sketcher.Constraint("Horizontal", 2))
sketch6.addConstraint(Sketcher.Constraint("Vertical", 3))
sketch6.addConstraint(Sketcher.Constraint("Horizontal", 4))
sketch6.addConstraint(Sketcher.Constraint("Coincident", 4, 1, 0, 2))
sketch6.addConstraint(Sketcher.Constraint("Vertical", 2, 2, 4, 2))
sketch6.addConstraint(Sketcher.Constraint("Angle", 1, Q("59 deg")))
sketch6.addConstraint(Sketcher.Constraint("DistanceX", 2, 1, 2, 2, Q("6.35 mm")))
sketch6.addConstraint(Sketcher.Constraint("DistanceX", -1, 1, 2, 2, Q("82.6 mm")))
sketch6.addConstraint(Sketcher.Constraint("DistanceY", 3, 2, 3, 1, Q("1.025 mm")))
sketch6.addConstraint(Sketcher.Constraint("DistanceY", -1, 1, 1, 2, Q("9.44 mm")))
sketch6.setExpression("Constraints[11]", "Params.sketch6_width")
groove2 = doc.addObject("PartDesign::Groove", "Groove001")
body.addObject(groove2)
groove2.Profile = sketch6
groove2.ReferenceAxis = (sketch6, ["Axis0"])
groove2.setExpression("Angle", "Params.groove2_angle")

# Sketch on XZ plane
sketch7 = doc.addObject("Sketcher::SketchObject", "Sketch006")
body.addObject(sketch7)
sketch7.AttachmentSupport = (doc.XZ_Plane, [""])
sketch7.MapMode = "FlatFace"
sketch7.AttachmentOffset = App.Placement(Vector(0, 0, -3.175), App.Rotation())
sketch7.addGeometry(Part.Circle(Vector(99.9, -46.6, 0), Vector(0, 0, 1), 3.5), False)
sketch7.addGeometry(Part.Circle(Vector(-95.4, -44.5, 0), Vector(0, 0, 1), 3.5), False)
sketch7.addConstraint(Sketcher.Constraint("Equal", 0, 1))
sketch7.addConstraint(Sketcher.Constraint("Diameter", 0, Q("7 mm")))
sketch7.addConstraint(Sketcher.Constraint("DistanceY", 1, 3, -1, 1, Q("44.475501 mm")))
sketch7.addConstraint(Sketcher.Constraint("DistanceY", 0, 3, -1, 1, Q("46.588592 mm")))
sketch7.addConstraint(Sketcher.Constraint("DistanceX", 1, 3, -1, 1, Q("95.378019 mm")))
sketch7.addConstraint(Sketcher.Constraint("DistanceX", -1, 1, 0, 3, Q("99.909558 mm")))
sketch7.setExpression("Constraints[1]", "Params.sketch7_diameter")
doc.recompute()
hole2 = doc.addObject("PartDesign::Hole", "Hole001")
body.addObject(hole2)
hole2.Profile = sketch7
hole2.ThreadType = "None"
hole2.setExpression("Diameter", "Params.hole2_diameter")
hole2.DepthType = "ThroughAll"
hole2.Reversed = True

doc.recompute()
